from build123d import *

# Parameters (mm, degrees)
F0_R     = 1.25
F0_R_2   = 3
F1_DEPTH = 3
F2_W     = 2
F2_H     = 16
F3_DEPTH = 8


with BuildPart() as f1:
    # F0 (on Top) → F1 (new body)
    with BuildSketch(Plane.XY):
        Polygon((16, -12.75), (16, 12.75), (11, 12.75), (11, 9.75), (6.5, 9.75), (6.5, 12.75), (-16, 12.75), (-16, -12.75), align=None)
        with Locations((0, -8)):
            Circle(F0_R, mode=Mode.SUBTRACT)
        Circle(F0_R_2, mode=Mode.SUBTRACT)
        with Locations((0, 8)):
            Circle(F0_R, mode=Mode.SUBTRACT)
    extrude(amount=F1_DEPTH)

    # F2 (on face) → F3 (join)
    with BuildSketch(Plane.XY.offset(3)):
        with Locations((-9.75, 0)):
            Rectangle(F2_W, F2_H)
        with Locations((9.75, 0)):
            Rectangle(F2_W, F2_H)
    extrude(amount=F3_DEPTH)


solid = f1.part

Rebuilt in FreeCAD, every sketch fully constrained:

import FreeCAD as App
import Part
import Sketcher

V = App.Vector


def add_polygon(sketch, points):
    """Adds a closed chain of lines whose ends are joined by coincident constraints."""
    first, n = sketch.GeometryCount, len(points)
    for a, b in zip(points, points[1:] + points[:1]):
        sketch.addGeometry(Part.LineSegment(App.Vector(*a, 0), App.Vector(*b, 0)), False)
    for i in range(n):
        sketch.addConstraint(Sketcher.Constraint("Coincident", first + i, 2, first + (i + 1) % n, 1))

doc = App.newDocument("Part")
body = doc.addObject("PartDesign::Body", "Body")

# Sketch on XY plane
sketch1 = body.newObject("Sketcher::SketchObject", "Sketch")
sketch1.AttachmentSupport = (doc.getObject("XY_Plane"), [""])
sketch1.MapMode = "FlatFace"
add_polygon(sketch1, [(16, -12.8), (16, 12.8), (11, 12.8), (11, 9.8), (6.5, 9.8), (6.5, 12.8), (-16, 12.8), (-16, -12.8)])  # lines 0-7
sketch1.addGeometry(Part.Circle(V(0, -8, 0), V(0, 0, 1), 1.2), False)  # 8
sketch1.addGeometry(Part.Circle(V(0, 0, 0), V(0, 0, 1), 3), False)  # 9
sketch1.addGeometry(Part.Circle(V(0, 8, 0), V(0, 0, 1), 1.2), False)  # 10
sketch1.addConstraint([
    Sketcher.Constraint("Vertical", 0),
    Sketcher.Constraint("Horizontal", 1),
    Sketcher.Constraint("Vertical", 2),
    Sketcher.Constraint("Horizontal", 3),
    Sketcher.Constraint("Vertical", 4),
    Sketcher.Constraint("Horizontal", 5),
    Sketcher.Constraint("Vertical", 6),
    Sketcher.Constraint("Horizontal", 7),
    Sketcher.Constraint("Coincident", 9, 3, -1, 1),
    Sketcher.Constraint("Equal", 8, 10),
    Sketcher.Constraint("Symmetric", 8, 3, 10, 3, -1, 1),
    Sketcher.Constraint("Symmetric", 0, 2, 6, 2, -1, 1),
    Sketcher.Constraint("PointOnObject", 8, 3, -2),
    Sketcher.Constraint("Horizontal", 1, 2, 4, 2),
    Sketcher.Constraint("Diameter", 9, 6.0),
    Sketcher.Constraint("Diameter", 8, 2.5),
    Sketcher.Constraint("DistanceX", 1, 2, 1, 1, 5.0),
    Sketcher.Constraint("DistanceX", 7, 1, 7, 2, 32.0),
    Sketcher.Constraint("DistanceY", 2, 2, 2, 1, 3.0),
    Sketcher.Constraint("DistanceX", 3, 2, 3, 1, 4.5),
    Sketcher.Constraint("DistanceY", 0, 1, 0, 2, 25.5),
    Sketcher.Constraint("DistanceY", 8, 3, -1, 1, 8.0),
])
pad1 = body.newObject("PartDesign::Pad", "Pad")
pad1.Profile = sketch1
pad1.Length = 3

# Sketch on XY plane
sketch2 = body.newObject("Sketcher::SketchObject", "Sketch001")
sketch2.AttachmentSupport = (doc.getObject("XY_Plane"), [""])
sketch2.MapMode = "FlatFace"
sketch2.AttachmentOffset = App.Placement(V(0, 0, 3), App.Rotation())
add_polygon(sketch2, [(-10.8, 8), (-10.8, -8), (-8.8, -8), (-8.8, 8)])  # lines 0-3
add_polygon(sketch2, [(8.8, 8), (8.8, -8), (10.8, -8), (10.8, 8)])  # lines 4-7
sketch2.addConstraint([
    Sketcher.Constraint("Vertical", 0),
    Sketcher.Constraint("Horizontal", 1),
    Sketcher.Constraint("Vertical", 2),
    Sketcher.Constraint("Horizontal", 3),
    Sketcher.Constraint("Vertical", 4),
    Sketcher.Constraint("Horizontal", 5),
    Sketcher.Constraint("Vertical", 6),
    Sketcher.Constraint("Horizontal", 7),
    Sketcher.Constraint("Symmetric", 2, 2, 4, 2, -1, 1),
    Sketcher.Constraint("Symmetric", 0, 2, 6, 2, -1, 1),
    Sketcher.Constraint("Horizontal", 1, 2, 4, 2),
    Sketcher.Constraint("DistanceX", 1, 1, 1, 2, 2.0),
    Sketcher.Constraint("DistanceY", 0, 2, 0, 1, 16.0),
    Sketcher.Constraint("DistanceX", 1, 2, 4, 2, 17.5),
])
pad2 = body.newObject("PartDesign::Pad", "Pad001")
pad2.Profile = sketch2
pad2.Length = 8

doc.recompute()
